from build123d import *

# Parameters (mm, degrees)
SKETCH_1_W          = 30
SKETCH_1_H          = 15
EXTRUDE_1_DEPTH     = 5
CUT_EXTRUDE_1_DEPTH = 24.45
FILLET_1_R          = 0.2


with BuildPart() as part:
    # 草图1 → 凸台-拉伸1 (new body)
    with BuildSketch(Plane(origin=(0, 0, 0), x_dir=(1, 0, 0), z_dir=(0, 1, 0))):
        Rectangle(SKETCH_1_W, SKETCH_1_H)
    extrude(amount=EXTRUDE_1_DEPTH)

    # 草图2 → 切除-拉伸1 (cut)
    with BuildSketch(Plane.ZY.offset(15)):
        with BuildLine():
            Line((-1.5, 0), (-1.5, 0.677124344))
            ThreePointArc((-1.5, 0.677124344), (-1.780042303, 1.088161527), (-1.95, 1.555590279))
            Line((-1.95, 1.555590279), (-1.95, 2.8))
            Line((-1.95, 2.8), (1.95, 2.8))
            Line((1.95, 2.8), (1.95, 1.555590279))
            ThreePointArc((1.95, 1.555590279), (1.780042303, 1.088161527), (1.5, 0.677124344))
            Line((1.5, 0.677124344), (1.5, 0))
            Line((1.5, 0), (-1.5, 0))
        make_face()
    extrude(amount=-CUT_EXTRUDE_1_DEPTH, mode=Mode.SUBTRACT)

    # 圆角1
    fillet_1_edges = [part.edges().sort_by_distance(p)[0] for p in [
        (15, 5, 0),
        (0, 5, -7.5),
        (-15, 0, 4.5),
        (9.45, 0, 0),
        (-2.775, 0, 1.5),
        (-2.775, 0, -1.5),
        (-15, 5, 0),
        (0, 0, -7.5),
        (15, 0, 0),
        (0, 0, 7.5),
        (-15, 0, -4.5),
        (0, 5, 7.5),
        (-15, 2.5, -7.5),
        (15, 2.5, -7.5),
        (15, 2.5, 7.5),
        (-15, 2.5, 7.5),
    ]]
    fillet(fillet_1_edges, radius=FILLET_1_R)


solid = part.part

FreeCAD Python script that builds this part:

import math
import FreeCAD as App
import Part
import Sketcher
from FreeCAD import Vector


def edges_at(feature, points):
    """Names of the edges that pass closest to the given points."""
    edges = feature.Shape.Edges
    near = lambda p: min(range(len(edges)), key=lambda i: edges[i].distToShape(Part.Vertex(*p))[0])
    return sorted({f"Edge{near(p) + 1}" for p in points})

doc = App.newDocument("Part")
params = doc.addObject("Spreadsheet::Sheet", "Params")
for row, (alias, value) in enumerate([
    ("sketch1_width", "30 mm"),
    ("sketch1_height", "15 mm"),
    ("pad1_length", "5 mm"),
    ("sketch2_radius", "2 mm"),
    ("sketch2_height", "3 mm"),
    ("sketch2_height2", "3.9 mm"),
    ("pocket1_length", "24.45 mm"),
    ("fillet_radius", "0.2 mm"),
], start=1):
    params.set(f"A{row}", alias)
    params.set(f"B{row}", "=" + value)
    params.setAlias(f"B{row}", alias)

body = doc.addObject("PartDesign::Body", "Body")

# Sketch on XZ plane
sketch1 = body.newObject("Sketcher::SketchObject", "Sketch")
sketch1.AttachmentSupport = (doc.getObject("XZ_Plane"), [""])
sketch1.MapMode = "FlatFace"
sketch1.addGeometry([
    Part.LineSegment(Vector(-15, -8, 0), Vector(-15, 8, 0)),
    Part.LineSegment(Vector(-15, 8, 0), Vector(15, 8, 0)),
    Part.LineSegment(Vector(15, 8, 0), Vector(15, -8, 0)),
    Part.LineSegment(Vector(15, -8, 0), Vector(-15, -8, 0)),
], False)
sketch1.addConstraint([
    Sketcher.Constraint("Coincident", 0, 2, 1, 1),
    Sketcher.Constraint("Coincident", 1, 2, 2, 1),
    Sketcher.Constraint("Coincident", 2, 2, 3, 1),
    Sketcher.Constraint("Coincident", 3, 2, 0, 1),
    Sketcher.Constraint("Vertical", 0),
    Sketcher.Constraint("Horizontal", 1),
    Sketcher.Constraint("Vertical", 2),
    Sketcher.Constraint("Horizontal", 3),
    Sketcher.Constraint("Symmetric", 0, 2, 2, 2, -1, 1),
    Sketcher.Constraint("DistanceX", 1, 1, 1, 2, 30.0),
    Sketcher.Constraint("DistanceY", 0, 1, 0, 2, 15.0),
])
sketch1.setExpression("Constraints[9]", "Params.sketch1_width")
sketch1.setExpression("Constraints[10]", "Params.sketch1_height")
pad1 = body.newObject("PartDesign::Pad", "Pad")
pad1.Profile = sketch1
pad1.setExpression("Length", "Params.pad1_length")
pad1.Reversed = True

# Sketch on YZ plane
sketch2 = body.newObject("Sketcher::SketchObject", "Sketch001")
sketch2.AttachmentSupport = (doc.getObject("YZ_Plane"), [""])
sketch2.MapMode = "FlatFace"
sketch2.AttachmentOffset = App.Placement(Vector(0, 0, -15), App.Rotation())
sketch2.addGeometry([
    Part.LineSegment(Vector(0.7, -1.5, 0), Vector(0, -1.5, 0)),  # 0
    Part.LineSegment(Vector(0, -1.5, 0), Vector(0, 1.5, 0)),  # 1
    Part.LineSegment(Vector(0, 1.5, 0), Vector(0.7, 1.5, 0)),  # 2
    Part.ArcOfCircle(Part.Circle(Vector(2, 0, 0), Vector(0, 0, 1), 2), math.radians(103), math.radians(131)),  # 3
    Part.LineSegment(Vector(1.6, 1.9, 0), Vector(2.8, 1.9, 0)),  # 4
    Part.LineSegment(Vector(2.8, 1.9, 0), Vector(2.8, -1.9, 0)),  # 5
    Part.LineSegment(Vector(2.8, -1.9, 0), Vector(1.6, -1.9, 0)),  # 6
    Part.ArcOfCircle(Part.Circle(Vector(2, 0, 0), Vector(0, 0, 1), 2), math.radians(-131), math.radians(-103)),  # 7
], False)
sketch2.addConstraint([
    Sketcher.Constraint("Coincident", 0, 2, 1, 1),
    Sketcher.Constraint("Coincident", 1, 2, 2, 1),
    Sketcher.Constraint("Coincident", 2, 2, 3, 2),
    Sketcher.Constraint("Coincident", 3, 1, 4, 1),
    Sketcher.Constraint("Coincident", 4, 2, 5, 1),
    Sketcher.Constraint("Coincident", 5, 2, 6, 1),
    Sketcher.Constraint("Coincident", 6, 2, 7, 2),
    Sketcher.Constraint("Coincident", 7, 1, 0, 1),
    Sketcher.Constraint("Horizontal", 0),
    Sketcher.Constraint("Vertical", 1),
    Sketcher.Constraint("Horizontal", 2),
    Sketcher.Constraint("Horizontal", 4),
    Sketcher.Constraint("Vertical", 5),
    Sketcher.Constraint("Horizontal", 6),
    Sketcher.Constraint("Coincident", 7, 3, 3, 3),
    Sketcher.Constraint("Equal", 3, 7),
    Sketcher.Constraint("Symmetric", 0, 2, 1, 2, -1, 1),
    Sketcher.Constraint("Symmetric", 3, 1, 6, 2, -1),
    Sketcher.Constraint("Radius", 3, 2.0),
    Sketcher.Constraint("DistanceY", 1, 1, 1, 2, 3.0),
    Sketcher.Constraint("DistanceY", 5, 2, 5, 1, 3.9),
    Sketcher.Constraint("DistanceX", -1, 1, 3, 3, 2.0),
    Sketcher.Constraint("DistanceX", -1, 1, 4, 2, 2.8),
])
sketch2.setExpression("Constraints[18]", "Params.sketch2_radius")
sketch2.setExpression("Constraints[19]", "Params.sketch2_height")
sketch2.setExpression("Constraints[20]", "Params.sketch2_height2")
pocket1 = body.newObject("PartDesign::Pocket", "Pocket")
pocket1.Profile = sketch2
pocket1.setExpression("Length", "Params.pocket1_length")
pocket1.Reversed = True
doc.recompute()

fillet = body.newObject("PartDesign::Fillet", "Fillet")
fillet.Base = (pocket1, edges_at(pocket1, [
    (15, 5, 0),
    (0, 5, -7.5),
    (-15, 0, 4.5),
    (9.45, 0, 0),
    (-2.775, 0, 1.5),
    (-2.775, 0, -1.5),
    (-15, 5, 0),
    (0, 0, -7.5),
    (15, 0, 0),
    (0, 0, 7.5),
    (-15, 0, -4.5),
    (0, 5, 7.5),
    (-15, 2.5, -7.5),
    (15, 2.5, -7.5),
    (15, 2.5, 7.5),
    (-15, 2.5, 7.5),
]))
fillet.setExpression("Radius", "Params.fillet_radius")

doc.recompute()
